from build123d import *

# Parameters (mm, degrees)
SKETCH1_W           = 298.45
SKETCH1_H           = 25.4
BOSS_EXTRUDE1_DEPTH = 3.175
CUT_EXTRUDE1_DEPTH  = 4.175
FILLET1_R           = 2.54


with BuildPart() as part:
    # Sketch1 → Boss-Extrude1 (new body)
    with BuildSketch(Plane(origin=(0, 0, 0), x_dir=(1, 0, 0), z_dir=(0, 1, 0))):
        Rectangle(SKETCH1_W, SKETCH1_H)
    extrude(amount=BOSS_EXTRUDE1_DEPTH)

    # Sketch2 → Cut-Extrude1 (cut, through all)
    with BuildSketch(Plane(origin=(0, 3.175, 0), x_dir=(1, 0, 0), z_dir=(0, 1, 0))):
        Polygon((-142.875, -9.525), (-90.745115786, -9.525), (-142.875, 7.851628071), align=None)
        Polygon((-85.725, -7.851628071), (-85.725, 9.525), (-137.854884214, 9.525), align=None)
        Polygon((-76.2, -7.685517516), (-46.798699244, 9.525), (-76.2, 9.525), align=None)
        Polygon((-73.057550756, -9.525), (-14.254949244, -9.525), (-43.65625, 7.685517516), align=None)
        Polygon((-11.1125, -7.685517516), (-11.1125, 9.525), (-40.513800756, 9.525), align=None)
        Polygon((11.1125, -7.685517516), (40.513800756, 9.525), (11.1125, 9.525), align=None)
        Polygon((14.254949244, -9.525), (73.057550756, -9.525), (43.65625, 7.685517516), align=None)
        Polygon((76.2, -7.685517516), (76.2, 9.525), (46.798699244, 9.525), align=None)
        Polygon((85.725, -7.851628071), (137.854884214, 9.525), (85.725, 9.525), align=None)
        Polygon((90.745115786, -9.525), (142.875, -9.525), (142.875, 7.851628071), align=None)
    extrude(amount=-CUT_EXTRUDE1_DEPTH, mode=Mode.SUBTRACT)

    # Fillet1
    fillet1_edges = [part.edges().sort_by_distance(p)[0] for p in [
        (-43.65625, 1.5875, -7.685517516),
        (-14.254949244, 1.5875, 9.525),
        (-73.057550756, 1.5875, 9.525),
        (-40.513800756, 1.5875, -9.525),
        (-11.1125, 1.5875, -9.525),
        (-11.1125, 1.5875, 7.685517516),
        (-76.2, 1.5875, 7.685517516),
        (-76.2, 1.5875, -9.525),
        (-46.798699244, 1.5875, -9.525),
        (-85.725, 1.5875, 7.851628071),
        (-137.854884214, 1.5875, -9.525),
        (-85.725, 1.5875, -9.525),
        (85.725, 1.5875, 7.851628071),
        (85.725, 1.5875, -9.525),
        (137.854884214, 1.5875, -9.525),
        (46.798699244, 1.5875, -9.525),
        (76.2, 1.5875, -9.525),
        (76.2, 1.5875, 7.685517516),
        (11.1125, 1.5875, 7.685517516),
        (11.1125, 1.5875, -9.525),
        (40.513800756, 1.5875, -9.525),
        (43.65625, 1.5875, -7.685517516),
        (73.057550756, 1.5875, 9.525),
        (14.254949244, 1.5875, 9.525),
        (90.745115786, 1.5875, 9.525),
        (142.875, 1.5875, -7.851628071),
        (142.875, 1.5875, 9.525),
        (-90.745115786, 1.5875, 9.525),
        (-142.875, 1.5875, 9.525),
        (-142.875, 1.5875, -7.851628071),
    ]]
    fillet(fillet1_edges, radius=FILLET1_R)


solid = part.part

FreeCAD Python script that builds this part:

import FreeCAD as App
import Part
import Sketcher
from FreeCAD import Vector
Q = App.Units.Quantity


def edges_at(feature, points):
    """Names of the edges that pass closest to the given points."""
    edges = feature.Shape.Edges
    near = lambda p: min(range(len(edges)), key=lambda i: edges[i].distToShape(Part.Vertex(*p))[0])
    return sorted({f"Edge{near(p) + 1}" for p in points})

doc = App.newDocument("Part")
body = doc.addObject("PartDesign::Body", "Body")

# Sketch on XZ plane
sketch1 = doc.addObject("Sketcher::SketchObject", "Sketch")
body.addObject(sketch1)
sketch1.AttachmentSupport = (doc.XZ_Plane, [""])
sketch1.MapMode = "FlatFace"
sketch1.addGeometry([
    Part.LineSegment(Vector(-149, -13, 0), Vector(-149, 13, 0)),
    Part.LineSegment(Vector(-149, 13, 0), Vector(149, 13, 0)),
    Part.LineSegment(Vector(149, 13, 0), Vector(149, -13, 0)),
    Part.LineSegment(Vector(149, -13, 0), Vector(-149, -13, 0)),
], False)
sketch1.addConstraint([
    Sketcher.Constraint("Coincident", 0, 2, 1, 1),
    Sketcher.Constraint("Coincident", 1, 2, 2, 1),
    Sketcher.Constraint("Coincident", 2, 2, 3, 1),
    Sketcher.Constraint("Coincident", 3, 2, 0, 1),
    Sketcher.Constraint("Vertical", 0),
    Sketcher.Constraint("Horizontal", 1),
    Sketcher.Constraint("Vertical", 2),
    Sketcher.Constraint("Horizontal", 3),
    Sketcher.Constraint("Symmetric", 0, 2, 2, 2, -1, 1),
    Sketcher.Constraint("DistanceY", 0, 1, 0, 2, Q("1 in")),
    Sketcher.Constraint("DistanceX", 1, 1, 1, 2, Q("11.75 in")),
])
pad1 = doc.addObject("PartDesign::Pad", "Pad")
body.addObject(pad1)
pad1.Profile = sketch1
pad1.Length = Q("0.125 in")
pad1.Reversed = True

# Sketch on XZ plane
sketch2 = doc.addObject("Sketcher::SketchObject", "Sketch001")
body.addObject(sketch2)
sketch2.AttachmentSupport = (doc.XZ_Plane, [""])
sketch2.MapMode = "FlatFace"
sketch2.AttachmentOffset = App.Placement(Vector(0, 0, -0.125 * 25.4), App.Rotation())
sketch2.addGeometry([
    Part.LineSegment(Vector(-143, 10, 0), Vector(-91, 10, 0)),  # 0
    Part.LineSegment(Vector(-91, 10, 0), Vector(-143, -8, 0)),  # 1
    Part.LineSegment(Vector(-143, -8, 0), Vector(-143, 10, 0)),  # 2
    Part.LineSegment(Vector(-86, 8, 0), Vector(-86, -10, 0)),  # 3
    Part.LineSegment(Vector(-86, -10, 0), Vector(-138, -10, 0)),  # 4
    Part.LineSegment(Vector(-138, -10, 0), Vector(-86, 8, 0)),  # 5
    Part.LineSegment(Vector(-76, 8, 0), Vector(-47, -10, 0)),  # 6
    Part.LineSegment(Vector(-47, -10, 0), Vector(-76, -10, 0)),  # 7
    Part.LineSegment(Vector(-76, -10, 0), Vector(-76, 8, 0)),  # 8
    Part.LineSegment(Vector(-73, 10, 0), Vector(-14, 10, 0)),  # 9
    Part.LineSegment(Vector(-14, 10, 0), Vector(-44, -8, 0)),  # 10
    Part.LineSegment(Vector(-44, -8, 0), Vector(-73, 10, 0)),  # 11
    Part.LineSegment(Vector(-11, 8, 0), Vector(-11, -10, 0)),  # 12
    Part.LineSegment(Vector(-11, -10, 0), Vector(-41, -10, 0)),  # 13
    Part.LineSegment(Vector(-41, -10, 0), Vector(-11, 8, 0)),  # 14
    Part.LineSegment(Vector(11, 8, 0), Vector(41, -10, 0)),  # 15
    Part.LineSegment(Vector(41, -10, 0), Vector(11, -10, 0)),  # 16
    Part.LineSegment(Vector(11, -10, 0), Vector(11, 8, 0)),  # 17
    Part.LineSegment(Vector(14, 10, 0), Vector(73, 10, 0)),  # 18
    Part.LineSegment(Vector(73, 10, 0), Vector(44, -8, 0)),  # 19
    Part.LineSegment(Vector(44, -8, 0), Vector(14, 10, 0)),  # 20
    Part.LineSegment(Vector(76, 8, 0), Vector(76, -10, 0)),  # 21
    Part.LineSegment(Vector(76, -10, 0), Vector(47, -10, 0)),  # 22
    Part.LineSegment(Vector(47, -10, 0), Vector(76, 8, 0)),  # 23
    Part.LineSegment(Vector(86, 8, 0), Vector(138, -10, 0)),  # 24
    Part.LineSegment(Vector(138, -10, 0), Vector(86, -10, 0)),  # 25
    Part.LineSegment(Vector(86, -10, 0), Vector(86, 8, 0)),  # 26
    Part.LineSegment(Vector(91, 10, 0), Vector(143, 10, 0)),  # 27
    Part.LineSegment(Vector(143, 10, 0), Vector(143, -8, 0)),  # 28
    Part.LineSegment(Vector(143, -8, 0), Vector(91, 10, 0)),  # 29
], False)
sketch2.addConstraint([
    Sketcher.Constraint("Coincident", 0, 2, 1, 1),
    Sketcher.Constraint("Coincident", 1, 2, 2, 1),
    Sketcher.Constraint("Coincident", 2, 2, 0, 1),
    Sketcher.Constraint("Coincident", 3, 2, 4, 1),
    Sketcher.Constraint("Coincident", 4, 2, 5, 1),
    Sketcher.Constraint("Coincident", 5, 2, 3, 1),
    Sketcher.Constraint("Coincident", 6, 2, 7, 1),
    Sketcher.Constraint("Coincident", 7, 2, 8, 1),
    Sketcher.Constraint("Coincident", 8, 2, 6, 1),
    Sketcher.Constraint("Coincident", 9, 2, 10, 1),
    Sketcher.Constraint("Coincident", 10, 2, 11, 1),
    Sketcher.Constraint("Coincident", 11, 2, 9, 1),
    Sketcher.Constraint("Coincident", 12, 2, 13, 1),
    Sketcher.Constraint("Coincident", 13, 2, 14, 1),
    Sketcher.Constraint("Coincident", 14, 2, 12, 1),
    Sketcher.Constraint("Coincident", 15, 2, 16, 1),
    Sketcher.Constraint("Coincident", 16, 2, 17, 1),
    Sketcher.Constraint("Coincident", 17, 2, 15, 1),
    Sketcher.Constraint("Coincident", 18, 2, 19, 1),
    Sketcher.Constraint("Coincident", 19, 2, 20, 1),
    Sketcher.Constraint("Coincident", 20, 2, 18, 1),
    Sketcher.Constraint("Coincident", 21, 2, 22, 1),
    Sketcher.Constraint("Coincident", 22, 2, 23, 1),
    Sketcher.Constraint("Coincident", 23, 2, 21, 1),
    Sketcher.Constraint("Coincident", 24, 2, 25, 1),
    Sketcher.Constraint("Coincident", 25, 2, 26, 1),
    Sketcher.Constraint("Coincident", 26, 2, 24, 1),
    Sketcher.Constraint("Coincident", 27, 2, 28, 1),
    Sketcher.Constraint("Coincident", 28, 2, 29, 1),
    Sketcher.Constraint("Coincident", 29, 2, 27, 1),
    Sketcher.Constraint("Horizontal", 0),
    Sketcher.Constraint("Vertical", 2),
    Sketcher.Constraint("Vertical", 3),
    Sketcher.Constraint("Horizontal", 4),
    Sketcher.Constraint("Horizontal", 7),
    Sketcher.Constraint("Vertical", 8),
    Sketcher.Constraint("Horizontal", 9),
    Sketcher.Constraint("Vertical", 12),
    Sketcher.Constraint("Horizontal", 13),
    Sketcher.Constraint("Horizontal", 16),
    Sketcher.Constraint("Vertical", 17),
    Sketcher.Constraint("Horizontal", 18),
    Sketcher.Constraint("Vertical", 21),
    Sketcher.Constraint("Horizontal", 22),
    Sketcher.Constraint("Horizontal", 25),
    Sketcher.Constraint("Vertical", 26),
    Sketcher.Constraint("Horizontal", 27),
    Sketcher.Constraint("Vertical", 28),
    Sketcher.Constraint("Symmetric", 13, 2, 15, 2, -2),
    Sketcher.Constraint("Symmetric", 14, 2, 17, 2, -2),
    Sketcher.Constraint("Symmetric", 11, 2, 18, 2, -2),
    Sketcher.Constraint("Symmetric", 10, 2, 19, 2, -2),
    Sketcher.Constraint("Symmetric", 7, 2, 21, 2, -2),
    Sketcher.Constraint("Symmetric", 4, 2, 24, 2, -2),
    Sketcher.Constraint("Symmetric", 5, 2, 26, 2, -2),
    Sketcher.Constraint("Symmetric", 2, 2, 27, 2, -2),
    Sketcher.Constraint("Parallel", 1, 5),
    Sketcher.Constraint("Parallel", 6, 11),
    Sketcher.Constraint("Parallel", 10, 14),
    Sketcher.Constraint("Parallel", 11, 15),
    Sketcher.Constraint("Parallel", 15, 20),
    Sketcher.Constraint("Parallel", 19, 23),
    Sketcher.Constraint("Parallel", 24, 29),
    Sketcher.Constraint("Horizontal", 4, 2, 6, 2),
    Sketcher.Constraint("Horizontal", 2, 2, 9, 2),
    Sketcher.Constraint("Horizontal", 7, 2, 12, 2),
    Sketcher.Constraint("Horizontal", 8, 2, 14, 2),
    Sketcher.Constraint("Horizontal", 17, 2, 23, 2),
    Sketcher.Constraint("Horizontal", 1, 2, 28, 2),
    Sketcher.Constraint("Equal", 0, 4),
    Sketcher.Constraint("Equal", 6, 10),
    Sketcher.Constraint("DistanceX", 7, 2, -1, 1, Q("3 in")),
    Sketcher.Constraint("DistanceY", 3, 2, 0, 2, Q("0.75 in")),
    Sketcher.Constraint("DistanceX", 1, 2, 3, 2, Q("2.25 in")),
    Sketcher.Constraint("DistanceY", -1, 1, 0, 2, Q("0.375 in")),
    Sketcher.Constraint("DistanceX", 1, 2, -1, 1, Q("5.625 in")),
    Sketcher.Constraint("DistanceX", 10, 2, -1, 1, Q("1.71875 in")),
    Sketcher.Constraint("DistanceX", 12, 2, -1, 1, Q("0.4375 in")),
    Sketcher.Constraint("DistanceX", 7, 2, 7, 1, 29.401301),
    Sketcher.Constraint("DistanceY", 2, 1, 2, 2, 17.376628),
    Sketcher.Constraint("DistanceX", 0, 1, 0, 2, 52.129884),
    Sketcher.Constraint("DistanceY", 8, 1, 8, 2, 17.210518),
])
pocket1 = doc.addObject("PartDesign::Pocket", "Pocket")
body.addObject(pocket1)
pocket1.Profile = sketch2
pocket1.Type = "ThroughAll"
pocket1.Reversed = True
doc.recompute()

fillet = doc.addObject("PartDesign::Fillet", "Fillet")
body.addObject(fillet)
fillet.Base = (pocket1, edges_at(pocket1, [
    (-43.656, 1.587, -7.686),
    (-14.255, 1.587, 9.525),
    (-73.058, 1.587, 9.525),
    (-40.514, 1.587, -9.525),
    (-11.113, 1.587, -9.525),
    (-11.113, 1.587, 7.686),
    (-76.2, 1.587, 7.686),
    (-76.2, 1.587, -9.525),
    (-46.799, 1.587, -9.525),
    (-85.725, 1.587, 7.852),
    (-137.855, 1.587, -9.525),
    (-85.725, 1.587, -9.525),
    (85.725, 1.587, 7.852),
    (85.725, 1.587, -9.525),
    (137.855, 1.587, -9.525),
    (46.799, 1.587, -9.525),
    (76.2, 1.587, -9.525),
    (76.2, 1.587, 7.686),
    (11.113, 1.587, 7.686),
    (11.113, 1.587, -9.525),
    (40.514, 1.587, -9.525),
    (43.656, 1.587, -7.686),
    (73.058, 1.587, 9.525),
    (14.255, 1.587, 9.525),
    (90.745, 1.587, 9.525),
    (142.875, 1.587, -7.852),
    (142.875, 1.587, 9.525),
    (-90.745, 1.587, 9.525),
    (-142.875, 1.587, 9.525),
    (-142.875, 1.587, -7.852),
]))
fillet.Radius = Q("0.1 in")

doc.recompute()
